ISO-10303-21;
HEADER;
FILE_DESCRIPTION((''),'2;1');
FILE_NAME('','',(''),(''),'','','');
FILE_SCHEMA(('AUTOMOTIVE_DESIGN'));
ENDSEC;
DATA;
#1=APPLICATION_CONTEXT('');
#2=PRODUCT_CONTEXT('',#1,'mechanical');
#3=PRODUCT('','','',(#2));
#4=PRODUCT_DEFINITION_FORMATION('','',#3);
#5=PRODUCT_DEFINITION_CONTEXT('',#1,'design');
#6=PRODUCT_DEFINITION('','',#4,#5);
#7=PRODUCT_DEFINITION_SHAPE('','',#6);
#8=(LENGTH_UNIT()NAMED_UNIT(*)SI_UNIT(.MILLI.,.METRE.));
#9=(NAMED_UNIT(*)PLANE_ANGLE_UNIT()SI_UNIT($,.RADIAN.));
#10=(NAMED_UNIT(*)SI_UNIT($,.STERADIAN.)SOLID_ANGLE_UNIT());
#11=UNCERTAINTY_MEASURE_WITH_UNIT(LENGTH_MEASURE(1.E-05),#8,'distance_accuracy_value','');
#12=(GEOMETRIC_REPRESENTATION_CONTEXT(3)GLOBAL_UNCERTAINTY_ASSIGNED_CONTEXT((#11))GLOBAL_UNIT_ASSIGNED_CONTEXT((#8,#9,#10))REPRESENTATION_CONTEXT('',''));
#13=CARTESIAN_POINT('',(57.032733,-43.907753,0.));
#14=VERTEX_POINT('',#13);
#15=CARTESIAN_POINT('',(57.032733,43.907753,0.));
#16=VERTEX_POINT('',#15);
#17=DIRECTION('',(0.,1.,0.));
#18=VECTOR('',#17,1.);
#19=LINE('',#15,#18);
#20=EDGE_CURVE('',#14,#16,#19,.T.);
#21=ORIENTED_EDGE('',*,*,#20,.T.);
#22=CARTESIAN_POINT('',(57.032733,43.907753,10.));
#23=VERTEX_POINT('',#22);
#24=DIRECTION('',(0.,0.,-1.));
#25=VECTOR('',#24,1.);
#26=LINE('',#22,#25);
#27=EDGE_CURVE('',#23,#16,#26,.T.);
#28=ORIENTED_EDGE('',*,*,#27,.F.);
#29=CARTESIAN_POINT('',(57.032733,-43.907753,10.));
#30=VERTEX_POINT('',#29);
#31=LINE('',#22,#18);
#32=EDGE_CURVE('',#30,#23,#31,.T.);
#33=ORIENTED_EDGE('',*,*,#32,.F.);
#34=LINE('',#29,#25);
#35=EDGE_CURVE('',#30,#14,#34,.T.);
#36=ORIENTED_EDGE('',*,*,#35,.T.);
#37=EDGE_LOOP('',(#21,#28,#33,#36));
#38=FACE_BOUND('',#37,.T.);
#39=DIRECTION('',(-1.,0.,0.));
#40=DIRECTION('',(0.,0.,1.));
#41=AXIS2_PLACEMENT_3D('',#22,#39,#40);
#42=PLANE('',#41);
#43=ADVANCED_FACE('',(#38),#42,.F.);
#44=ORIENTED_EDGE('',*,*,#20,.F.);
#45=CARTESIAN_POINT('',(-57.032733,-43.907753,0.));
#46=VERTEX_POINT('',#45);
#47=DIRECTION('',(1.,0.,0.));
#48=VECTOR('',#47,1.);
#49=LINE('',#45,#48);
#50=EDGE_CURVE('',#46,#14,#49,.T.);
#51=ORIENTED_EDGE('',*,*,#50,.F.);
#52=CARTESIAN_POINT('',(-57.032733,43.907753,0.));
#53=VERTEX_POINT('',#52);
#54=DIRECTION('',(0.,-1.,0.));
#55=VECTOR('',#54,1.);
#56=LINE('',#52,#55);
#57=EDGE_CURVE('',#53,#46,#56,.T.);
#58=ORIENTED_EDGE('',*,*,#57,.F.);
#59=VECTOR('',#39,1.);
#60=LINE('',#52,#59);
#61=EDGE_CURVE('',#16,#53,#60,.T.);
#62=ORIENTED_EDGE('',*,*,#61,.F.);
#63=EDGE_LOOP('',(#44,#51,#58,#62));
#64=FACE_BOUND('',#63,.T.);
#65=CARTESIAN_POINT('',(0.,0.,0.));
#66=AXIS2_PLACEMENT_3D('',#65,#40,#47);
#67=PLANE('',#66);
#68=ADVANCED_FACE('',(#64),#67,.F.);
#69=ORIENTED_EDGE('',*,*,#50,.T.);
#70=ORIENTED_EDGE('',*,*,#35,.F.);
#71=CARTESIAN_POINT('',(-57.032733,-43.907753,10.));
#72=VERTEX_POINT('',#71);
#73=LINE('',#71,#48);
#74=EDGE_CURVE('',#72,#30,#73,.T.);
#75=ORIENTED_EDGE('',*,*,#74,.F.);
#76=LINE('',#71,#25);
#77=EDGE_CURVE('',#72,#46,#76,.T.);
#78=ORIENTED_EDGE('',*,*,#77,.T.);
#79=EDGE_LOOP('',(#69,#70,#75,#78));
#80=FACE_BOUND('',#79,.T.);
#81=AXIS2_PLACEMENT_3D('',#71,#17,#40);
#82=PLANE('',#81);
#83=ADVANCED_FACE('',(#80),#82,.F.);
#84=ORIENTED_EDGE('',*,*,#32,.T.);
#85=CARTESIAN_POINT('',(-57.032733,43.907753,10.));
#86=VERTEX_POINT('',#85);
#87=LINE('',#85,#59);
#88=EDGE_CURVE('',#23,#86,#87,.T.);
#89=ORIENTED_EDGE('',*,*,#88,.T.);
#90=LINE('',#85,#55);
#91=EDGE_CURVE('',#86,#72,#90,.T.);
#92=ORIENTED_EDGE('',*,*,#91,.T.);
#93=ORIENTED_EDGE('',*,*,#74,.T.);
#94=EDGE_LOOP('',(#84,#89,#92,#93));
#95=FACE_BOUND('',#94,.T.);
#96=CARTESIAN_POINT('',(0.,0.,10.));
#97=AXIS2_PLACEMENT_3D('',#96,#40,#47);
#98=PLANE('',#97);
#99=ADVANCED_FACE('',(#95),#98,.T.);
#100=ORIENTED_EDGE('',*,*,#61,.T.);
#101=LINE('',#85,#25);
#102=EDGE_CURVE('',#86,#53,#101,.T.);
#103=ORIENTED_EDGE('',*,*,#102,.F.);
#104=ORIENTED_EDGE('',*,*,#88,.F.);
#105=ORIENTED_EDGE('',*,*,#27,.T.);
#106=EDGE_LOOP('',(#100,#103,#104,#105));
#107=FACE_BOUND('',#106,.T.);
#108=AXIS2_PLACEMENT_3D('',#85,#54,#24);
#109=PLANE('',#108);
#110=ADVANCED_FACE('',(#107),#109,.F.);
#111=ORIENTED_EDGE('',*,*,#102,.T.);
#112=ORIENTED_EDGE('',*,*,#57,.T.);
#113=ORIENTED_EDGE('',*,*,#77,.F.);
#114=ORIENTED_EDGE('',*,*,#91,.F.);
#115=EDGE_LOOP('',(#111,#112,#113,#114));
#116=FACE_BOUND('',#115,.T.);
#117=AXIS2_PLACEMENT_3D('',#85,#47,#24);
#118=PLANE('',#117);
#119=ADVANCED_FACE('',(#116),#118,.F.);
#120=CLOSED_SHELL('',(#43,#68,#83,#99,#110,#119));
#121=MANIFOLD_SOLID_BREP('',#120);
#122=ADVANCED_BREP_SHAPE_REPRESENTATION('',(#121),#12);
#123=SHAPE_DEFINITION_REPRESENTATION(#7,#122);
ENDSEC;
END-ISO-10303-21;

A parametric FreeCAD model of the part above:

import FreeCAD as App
import Part
import Sketcher

V = App.Vector


def add_polygon(sketch, points):
    """Adds a closed chain of lines whose ends are joined by coincident constraints."""
    first, n = sketch.GeometryCount, len(points)
    for a, b in zip(points, points[1:] + points[:1]):
        sketch.addGeometry(Part.LineSegment(App.Vector(*a, 0), App.Vector(*b, 0)), False)
    for i in range(n):
        sketch.addConstraint(Sketcher.Constraint("Coincident", first + i, 2, first + (i + 1) % n, 1))

doc = App.newDocument("Part")
body = doc.addObject("PartDesign::Body", "Body")

# Sketch on XY plane
sketch1 = body.newObject("Sketcher::SketchObject", "Sketch")
sketch1.AttachmentSupport = (doc.getObject("XY_Plane"), [""])
sketch1.MapMode = "FlatFace"
add_polygon(sketch1, [(-57, 44), (-57, -44), (57, -44), (57, 44)])  # lines 0-3
sketch1.addConstraint([
    Sketcher.Constraint("Vertical", 0),
    Sketcher.Constraint("Horizontal", 1),
    Sketcher.Constraint("Vertical", 2),
    Sketcher.Constraint("Horizontal", 3),
    Sketcher.Constraint("Symmetric", 0, 2, 2, 2, -1, 1),
    Sketcher.Constraint("DistanceX", 1, 1, 1, 2, 114.065467),
    Sketcher.Constraint("DistanceY", 0, 2, 0, 1, 87.815506),
])
pad1 = body.newObject("PartDesign::Pad", "Pad")
pad1.Profile = sketch1
pad1.Length = 10

doc.recompute()
